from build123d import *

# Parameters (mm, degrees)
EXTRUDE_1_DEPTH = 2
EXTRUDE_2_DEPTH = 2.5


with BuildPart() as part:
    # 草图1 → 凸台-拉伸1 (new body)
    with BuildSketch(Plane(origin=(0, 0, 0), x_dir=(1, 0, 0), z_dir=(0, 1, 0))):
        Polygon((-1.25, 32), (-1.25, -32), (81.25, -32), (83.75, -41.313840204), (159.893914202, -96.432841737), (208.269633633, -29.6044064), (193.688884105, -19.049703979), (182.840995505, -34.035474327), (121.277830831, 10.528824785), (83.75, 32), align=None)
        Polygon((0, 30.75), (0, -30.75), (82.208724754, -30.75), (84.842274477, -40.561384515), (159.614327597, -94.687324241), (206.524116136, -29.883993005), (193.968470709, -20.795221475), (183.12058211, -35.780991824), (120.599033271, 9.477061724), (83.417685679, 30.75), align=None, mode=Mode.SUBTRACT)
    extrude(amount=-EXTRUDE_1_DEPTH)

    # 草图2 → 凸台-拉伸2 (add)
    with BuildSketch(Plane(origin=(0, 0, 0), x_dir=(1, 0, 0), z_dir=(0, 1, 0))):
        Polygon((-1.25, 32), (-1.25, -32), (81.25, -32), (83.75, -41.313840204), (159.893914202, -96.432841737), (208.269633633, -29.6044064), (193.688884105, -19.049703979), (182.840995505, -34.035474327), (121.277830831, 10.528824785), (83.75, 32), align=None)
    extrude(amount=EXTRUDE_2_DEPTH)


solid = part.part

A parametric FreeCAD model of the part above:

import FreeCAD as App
import Part
import Sketcher

V = App.Vector
Q = App.Units.Quantity

doc = App.newDocument("Part")
body = doc.addObject("PartDesign::Body", "Body")

sketch1 = body.newObject("Sketcher::SketchObject", "Sketch")
sketch1.AttachmentSupport = (doc.getObject("XZ_Plane"), [""])
sketch1.MapMode = "FlatFace"
sketch1.addGeometry(Part.LineSegment(V(-1, -32, 0), V(-1, 32, 0)), False)
sketch1.addGeometry(Part.LineSegment(V(-1, 32, 0), V(81, 32, 0)), False)
sketch1.addGeometry(Part.LineSegment(V(81, 32, 0), V(84, 41, 0)), False)
sketch1.addGeometry(Part.LineSegment(V(84, 41, 0), V(160, 96, 0)), False)
sketch1.addGeometry(Part.LineSegment(V(160, 96, 0), V(208, 30, 0)), False)
sketch1.addGeometry(Part.LineSegment(V(208, 30, 0), V(194, 19, 0)), False)
sketch1.addGeometry(Part.LineSegment(V(194, 19, 0), V(183, 34, 0)), False)
sketch1.addGeometry(Part.LineSegment(V(183, 34, 0), V(121, -11, 0)), False)
sketch1.addGeometry(Part.LineSegment(V(121, -11, 0), V(84, -32, 0)), False)
sketch1.addGeometry(Part.LineSegment(V(84, -32, 0), V(-1, -32, 0)), False)
sketch1.addGeometry(Part.LineSegment(V(0, 31, 0), V(0, -31, 0)), False)
sketch1.addGeometry(Part.LineSegment(V(0, -31, 0), V(83, -31, 0)), False)
sketch1.addGeometry(Part.LineSegment(V(83, -31, 0), V(121, -9, 0)), False)
sketch1.addGeometry(Part.LineSegment(V(121, -9, 0), V(183, 36, 0)), False)
sketch1.addGeometry(Part.LineSegment(V(183, 36, 0), V(194, 21, 0)), False)
sketch1.addGeometry(Part.LineSegment(V(194, 21, 0), V(207, 30, 0)), False)
sketch1.addGeometry(Part.LineSegment(V(207, 30, 0), V(160, 95, 0)), False)
sketch1.addGeometry(Part.LineSegment(V(160, 95, 0), V(85, 41, 0)), False)
sketch1.addGeometry(Part.LineSegment(V(85, 41, 0), V(82, 31, 0)), False)
sketch1.addGeometry(Part.LineSegment(V(82, 31, 0), V(0, 31, 0)), False)
sketch1.addConstraint(Sketcher.Constraint("Coincident", 0, 2, 1, 1))
sketch1.addConstraint(Sketcher.Constraint("Coincident", 1, 2, 2, 1))
sketch1.addConstraint(Sketcher.Constraint("Coincident", 2, 2, 3, 1))
sketch1.addConstraint(Sketcher.Constraint("Coincident", 3, 2, 4, 1))
sketch1.addConstraint(Sketcher.Constraint("Coincident", 4, 2, 5, 1))
sketch1.addConstraint(Sketcher.Constraint("Coincident", 5, 2, 6, 1))
sketch1.addConstraint(Sketcher.Constraint("Coincident", 6, 2, 7, 1))
sketch1.addConstraint(Sketcher.Constraint("Coincident", 7, 2, 8, 1))
sketch1.addConstraint(Sketcher.Constraint("Coincident", 8, 2, 9, 1))
sketch1.addConstraint(Sketcher.Constraint("Coincident", 9, 2, 0, 1))
sketch1.addConstraint(Sketcher.Constraint("Coincident", 10, 2, 11, 1))
sketch1.addConstraint(Sketcher.Constraint("Coincident", 11, 2, 12, 1))
sketch1.addConstraint(Sketcher.Constraint("Coincident", 12, 2, 13, 1))
sketch1.addConstraint(Sketcher.Constraint("Coincident", 13, 2, 14, 1))
sketch1.addConstraint(Sketcher.Constraint("Coincident", 14, 2, 15, 1))
sketch1.addConstraint(Sketcher.Constraint("Coincident", 15, 2, 16, 1))
sketch1.addConstraint(Sketcher.Constraint("Coincident", 16, 2, 17, 1))
sketch1.addConstraint(Sketcher.Constraint("Coincident", 17, 2, 18, 1))
sketch1.addConstraint(Sketcher.Constraint("Coincident", 18, 2, 19, 1))
sketch1.addConstraint(Sketcher.Constraint("Coincident", 19, 2, 10, 1))
sketch1.addConstraint(Sketcher.Constraint("Vertical", 0))
sketch1.addConstraint(Sketcher.Constraint("Horizontal", 1))
sketch1.addConstraint(Sketcher.Constraint("Horizontal", 9))
sketch1.addConstraint(Sketcher.Constraint("Vertical", 10))
sketch1.addConstraint(Sketcher.Constraint("Horizontal", 11))
sketch1.addConstraint(Sketcher.Constraint("Horizontal", 19))
sketch1.addConstraint(Sketcher.Constraint("Symmetric", 10, 2, 19, 2, -1, 1))
sketch1.addConstraint(Sketcher.Constraint("Perpendicular", 3, 4))
sketch1.addConstraint(Sketcher.Constraint("Perpendicular", 4, 5))
sketch1.addConstraint(Sketcher.Constraint("Perpendicular", 5, 6))
sketch1.addConstraint(Sketcher.Constraint("Perpendicular", 6, 7))
sketch1.addConstraint(Sketcher.Constraint("Parallel", 8, 12))
sketch1.addConstraint(Sketcher.Constraint("Parallel", 7, 13))
sketch1.addConstraint(Sketcher.Constraint("Perpendicular", 13, 14))
sketch1.addConstraint(Sketcher.Constraint("Perpendicular", 14, 15))
sketch1.addConstraint(Sketcher.Constraint("Perpendicular", 15, 16))
sketch1.addConstraint(Sketcher.Constraint("Perpendicular", 16, 17))
sketch1.addConstraint(Sketcher.Constraint("Parallel", 2, 18))
sketch1.addConstraint(Sketcher.Constraint("Vertical", 2, 2, 8, 2))
sketch1.addConstraint(Sketcher.Constraint("Equal", 6, 14))
sketch1.addConstraint(Sketcher.Constraint("DistanceX", 9, 2, 9, 1, 85.0))
sketch1.addConstraint(Sketcher.Constraint("DistanceY", 0, 1, 0, 2, 64.0))
sketch1.addConstraint(Sketcher.Constraint("Distance", 3, 94.0))
sketch1.addConstraint(Sketcher.Constraint("Distance", 5, 18.0))
sketch1.addConstraint(Sketcher.Constraint("Distance", 7, 76.0))
sketch1.addConstraint(Sketcher.Constraint("Distance", 16, 80.0))
sketch1.addConstraint(Sketcher.Constraint("DistanceX", 1, 1, 1, 2, 82.5))
sketch1.addConstraint(Sketcher.Constraint("DistanceY", 10, 2, 10, 1, 61.5))
sketch1.addConstraint(Sketcher.Constraint("DistanceY", -1, 1, 0, 2, 32.0))
sketch1.addConstraint(Sketcher.Constraint("Angle", 3, Q("35.9 deg")))
sketch1.addConstraint(Sketcher.Constraint("Distance", 4, 82.5))
sketch1.addConstraint(Sketcher.Constraint("Distance", 6, 18.5))
sketch1.addConstraint(Sketcher.Constraint("Distance", 15, 15.5))
sketch1.addConstraint(Sketcher.Constraint("DistanceX", 0, 2, -1, 1, 1.25))
sketch1.addConstraint(Sketcher.Constraint("DistanceY", 12, 2, 2, 2, 50.790902))
sketch1.addConstraint(Sketcher.Constraint("DistanceX", 13, 2, 5, 2, 10.568302))
sketch1.addConstraint(Sketcher.Constraint("Distance", 12, 42.836789))
sketch1.addConstraint(Sketcher.Constraint("Distance", 13, 77.18313))
sketch1.addConstraint(Sketcher.Constraint("Distance", 17, 92.306431))
pad1 = body.newObject("PartDesign::Pad", "Pad")
pad1.Profile = sketch1
pad1.Length = 2

sketch2 = body.newObject("Sketcher::SketchObject", "Sketch001")
sketch2.AttachmentSupport = (doc.getObject("XZ_Plane"), [""])
sketch2.MapMode = "FlatFace"
sketch2.addGeometry(Part.LineSegment(V(-1, -32, 0), V(-1, 32, 0)), False)
sketch2.addGeometry(Part.LineSegment(V(-1, 32, 0), V(81, 32, 0)), False)
sketch2.addGeometry(Part.LineSegment(V(81, 32, 0), V(84, 41, 0)), False)
sketch2.addGeometry(Part.LineSegment(V(84, 41, 0), V(160, 96, 0)), False)
sketch2.addGeometry(Part.LineSegment(V(160, 96, 0), V(208, 30, 0)), False)
sketch2.addGeometry(Part.LineSegment(V(208, 30, 0), V(194, 19, 0)), False)
sketch2.addGeometry(Part.LineSegment(V(194, 19, 0), V(183, 34, 0)), False)
sketch2.addGeometry(Part.LineSegment(V(183, 34, 0), V(121, -11, 0)), False)
sketch2.addGeometry(Part.LineSegment(V(121, -11, 0), V(84, -32, 0)), False)
sketch2.addGeometry(Part.LineSegment(V(84, -32, 0), V(-1, -32, 0)), False)
sketch2.addConstraint(Sketcher.Constraint("Coincident", 0, 2, 1, 1))
sketch2.addConstraint(Sketcher.Constraint("Coincident", 1, 2, 2, 1))
sketch2.addConstraint(Sketcher.Constraint("Coincident", 2, 2, 3, 1))
sketch2.addConstraint(Sketcher.Constraint("Coincident", 3, 2, 4, 1))
sketch2.addConstraint(Sketcher.Constraint("Coincident", 4, 2, 5, 1))
sketch2.addConstraint(Sketcher.Constraint("Coincident", 5, 2, 6, 1))
sketch2.addConstraint(Sketcher.Constraint("Coincident", 6, 2, 7, 1))
sketch2.addConstraint(Sketcher.Constraint("Coincident", 7, 2, 8, 1))
sketch2.addConstraint(Sketcher.Constraint("Coincident", 8, 2, 9, 1))
sketch2.addConstraint(Sketcher.Constraint("Coincident", 9, 2, 0, 1))
sketch2.addConstraint(Sketcher.Constraint("Vertical", 0))
sketch2.addConstraint(Sketcher.Constraint("Horizontal", 1))
sketch2.addConstraint(Sketcher.Constraint("Horizontal", 9))
sketch2.addConstraint(Sketcher.Constraint("Perpendicular", 3, 4))
sketch2.addConstraint(Sketcher.Constraint("Perpendicular", 4, 5))
sketch2.addConstraint(Sketcher.Constraint("Perpendicular", 5, 6))
sketch2.addConstraint(Sketcher.Constraint("Perpendicular", 6, 7))
sketch2.addConstraint(Sketcher.Constraint("Vertical", 2, 2, 8, 2))
sketch2.addConstraint(Sketcher.Constraint("DistanceX", 9, 2, 9, 1, 85.0))
sketch2.addConstraint(Sketcher.Constraint("DistanceY", 0, 1, 0, 2, 64.0))
sketch2.addConstraint(Sketcher.Constraint("Distance", 3, 94.0))
sketch2.addConstraint(Sketcher.Constraint("Distance", 5, 18.0))
sketch2.addConstraint(Sketcher.Constraint("Distance", 7, 76.0))
sketch2.addConstraint(Sketcher.Constraint("DistanceX", 1, 1, 1, 2, 82.5))
sketch2.addConstraint(Sketcher.Constraint("DistanceY", -1, 1, 0, 2, 32.0))
sketch2.addConstraint(Sketcher.Constraint("Angle", 3, Q("35.9 deg")))
sketch2.addConstraint(Sketcher.Constraint("Distance", 4, 82.5))
sketch2.addConstraint(Sketcher.Constraint("Distance", 6, 18.5))
sketch2.addConstraint(Sketcher.Constraint("DistanceX", 0, 2, -1, 1, 1.25))
sketch2.addConstraint(Sketcher.Constraint("DistanceY", -1, 1, 2, 2, 41.31384))
pad2 = body.newObject("PartDesign::Pad", "Pad001")
pad2.Profile = sketch2
pad2.Length = 2.5
pad2.Reversed = True

doc.recompute()
